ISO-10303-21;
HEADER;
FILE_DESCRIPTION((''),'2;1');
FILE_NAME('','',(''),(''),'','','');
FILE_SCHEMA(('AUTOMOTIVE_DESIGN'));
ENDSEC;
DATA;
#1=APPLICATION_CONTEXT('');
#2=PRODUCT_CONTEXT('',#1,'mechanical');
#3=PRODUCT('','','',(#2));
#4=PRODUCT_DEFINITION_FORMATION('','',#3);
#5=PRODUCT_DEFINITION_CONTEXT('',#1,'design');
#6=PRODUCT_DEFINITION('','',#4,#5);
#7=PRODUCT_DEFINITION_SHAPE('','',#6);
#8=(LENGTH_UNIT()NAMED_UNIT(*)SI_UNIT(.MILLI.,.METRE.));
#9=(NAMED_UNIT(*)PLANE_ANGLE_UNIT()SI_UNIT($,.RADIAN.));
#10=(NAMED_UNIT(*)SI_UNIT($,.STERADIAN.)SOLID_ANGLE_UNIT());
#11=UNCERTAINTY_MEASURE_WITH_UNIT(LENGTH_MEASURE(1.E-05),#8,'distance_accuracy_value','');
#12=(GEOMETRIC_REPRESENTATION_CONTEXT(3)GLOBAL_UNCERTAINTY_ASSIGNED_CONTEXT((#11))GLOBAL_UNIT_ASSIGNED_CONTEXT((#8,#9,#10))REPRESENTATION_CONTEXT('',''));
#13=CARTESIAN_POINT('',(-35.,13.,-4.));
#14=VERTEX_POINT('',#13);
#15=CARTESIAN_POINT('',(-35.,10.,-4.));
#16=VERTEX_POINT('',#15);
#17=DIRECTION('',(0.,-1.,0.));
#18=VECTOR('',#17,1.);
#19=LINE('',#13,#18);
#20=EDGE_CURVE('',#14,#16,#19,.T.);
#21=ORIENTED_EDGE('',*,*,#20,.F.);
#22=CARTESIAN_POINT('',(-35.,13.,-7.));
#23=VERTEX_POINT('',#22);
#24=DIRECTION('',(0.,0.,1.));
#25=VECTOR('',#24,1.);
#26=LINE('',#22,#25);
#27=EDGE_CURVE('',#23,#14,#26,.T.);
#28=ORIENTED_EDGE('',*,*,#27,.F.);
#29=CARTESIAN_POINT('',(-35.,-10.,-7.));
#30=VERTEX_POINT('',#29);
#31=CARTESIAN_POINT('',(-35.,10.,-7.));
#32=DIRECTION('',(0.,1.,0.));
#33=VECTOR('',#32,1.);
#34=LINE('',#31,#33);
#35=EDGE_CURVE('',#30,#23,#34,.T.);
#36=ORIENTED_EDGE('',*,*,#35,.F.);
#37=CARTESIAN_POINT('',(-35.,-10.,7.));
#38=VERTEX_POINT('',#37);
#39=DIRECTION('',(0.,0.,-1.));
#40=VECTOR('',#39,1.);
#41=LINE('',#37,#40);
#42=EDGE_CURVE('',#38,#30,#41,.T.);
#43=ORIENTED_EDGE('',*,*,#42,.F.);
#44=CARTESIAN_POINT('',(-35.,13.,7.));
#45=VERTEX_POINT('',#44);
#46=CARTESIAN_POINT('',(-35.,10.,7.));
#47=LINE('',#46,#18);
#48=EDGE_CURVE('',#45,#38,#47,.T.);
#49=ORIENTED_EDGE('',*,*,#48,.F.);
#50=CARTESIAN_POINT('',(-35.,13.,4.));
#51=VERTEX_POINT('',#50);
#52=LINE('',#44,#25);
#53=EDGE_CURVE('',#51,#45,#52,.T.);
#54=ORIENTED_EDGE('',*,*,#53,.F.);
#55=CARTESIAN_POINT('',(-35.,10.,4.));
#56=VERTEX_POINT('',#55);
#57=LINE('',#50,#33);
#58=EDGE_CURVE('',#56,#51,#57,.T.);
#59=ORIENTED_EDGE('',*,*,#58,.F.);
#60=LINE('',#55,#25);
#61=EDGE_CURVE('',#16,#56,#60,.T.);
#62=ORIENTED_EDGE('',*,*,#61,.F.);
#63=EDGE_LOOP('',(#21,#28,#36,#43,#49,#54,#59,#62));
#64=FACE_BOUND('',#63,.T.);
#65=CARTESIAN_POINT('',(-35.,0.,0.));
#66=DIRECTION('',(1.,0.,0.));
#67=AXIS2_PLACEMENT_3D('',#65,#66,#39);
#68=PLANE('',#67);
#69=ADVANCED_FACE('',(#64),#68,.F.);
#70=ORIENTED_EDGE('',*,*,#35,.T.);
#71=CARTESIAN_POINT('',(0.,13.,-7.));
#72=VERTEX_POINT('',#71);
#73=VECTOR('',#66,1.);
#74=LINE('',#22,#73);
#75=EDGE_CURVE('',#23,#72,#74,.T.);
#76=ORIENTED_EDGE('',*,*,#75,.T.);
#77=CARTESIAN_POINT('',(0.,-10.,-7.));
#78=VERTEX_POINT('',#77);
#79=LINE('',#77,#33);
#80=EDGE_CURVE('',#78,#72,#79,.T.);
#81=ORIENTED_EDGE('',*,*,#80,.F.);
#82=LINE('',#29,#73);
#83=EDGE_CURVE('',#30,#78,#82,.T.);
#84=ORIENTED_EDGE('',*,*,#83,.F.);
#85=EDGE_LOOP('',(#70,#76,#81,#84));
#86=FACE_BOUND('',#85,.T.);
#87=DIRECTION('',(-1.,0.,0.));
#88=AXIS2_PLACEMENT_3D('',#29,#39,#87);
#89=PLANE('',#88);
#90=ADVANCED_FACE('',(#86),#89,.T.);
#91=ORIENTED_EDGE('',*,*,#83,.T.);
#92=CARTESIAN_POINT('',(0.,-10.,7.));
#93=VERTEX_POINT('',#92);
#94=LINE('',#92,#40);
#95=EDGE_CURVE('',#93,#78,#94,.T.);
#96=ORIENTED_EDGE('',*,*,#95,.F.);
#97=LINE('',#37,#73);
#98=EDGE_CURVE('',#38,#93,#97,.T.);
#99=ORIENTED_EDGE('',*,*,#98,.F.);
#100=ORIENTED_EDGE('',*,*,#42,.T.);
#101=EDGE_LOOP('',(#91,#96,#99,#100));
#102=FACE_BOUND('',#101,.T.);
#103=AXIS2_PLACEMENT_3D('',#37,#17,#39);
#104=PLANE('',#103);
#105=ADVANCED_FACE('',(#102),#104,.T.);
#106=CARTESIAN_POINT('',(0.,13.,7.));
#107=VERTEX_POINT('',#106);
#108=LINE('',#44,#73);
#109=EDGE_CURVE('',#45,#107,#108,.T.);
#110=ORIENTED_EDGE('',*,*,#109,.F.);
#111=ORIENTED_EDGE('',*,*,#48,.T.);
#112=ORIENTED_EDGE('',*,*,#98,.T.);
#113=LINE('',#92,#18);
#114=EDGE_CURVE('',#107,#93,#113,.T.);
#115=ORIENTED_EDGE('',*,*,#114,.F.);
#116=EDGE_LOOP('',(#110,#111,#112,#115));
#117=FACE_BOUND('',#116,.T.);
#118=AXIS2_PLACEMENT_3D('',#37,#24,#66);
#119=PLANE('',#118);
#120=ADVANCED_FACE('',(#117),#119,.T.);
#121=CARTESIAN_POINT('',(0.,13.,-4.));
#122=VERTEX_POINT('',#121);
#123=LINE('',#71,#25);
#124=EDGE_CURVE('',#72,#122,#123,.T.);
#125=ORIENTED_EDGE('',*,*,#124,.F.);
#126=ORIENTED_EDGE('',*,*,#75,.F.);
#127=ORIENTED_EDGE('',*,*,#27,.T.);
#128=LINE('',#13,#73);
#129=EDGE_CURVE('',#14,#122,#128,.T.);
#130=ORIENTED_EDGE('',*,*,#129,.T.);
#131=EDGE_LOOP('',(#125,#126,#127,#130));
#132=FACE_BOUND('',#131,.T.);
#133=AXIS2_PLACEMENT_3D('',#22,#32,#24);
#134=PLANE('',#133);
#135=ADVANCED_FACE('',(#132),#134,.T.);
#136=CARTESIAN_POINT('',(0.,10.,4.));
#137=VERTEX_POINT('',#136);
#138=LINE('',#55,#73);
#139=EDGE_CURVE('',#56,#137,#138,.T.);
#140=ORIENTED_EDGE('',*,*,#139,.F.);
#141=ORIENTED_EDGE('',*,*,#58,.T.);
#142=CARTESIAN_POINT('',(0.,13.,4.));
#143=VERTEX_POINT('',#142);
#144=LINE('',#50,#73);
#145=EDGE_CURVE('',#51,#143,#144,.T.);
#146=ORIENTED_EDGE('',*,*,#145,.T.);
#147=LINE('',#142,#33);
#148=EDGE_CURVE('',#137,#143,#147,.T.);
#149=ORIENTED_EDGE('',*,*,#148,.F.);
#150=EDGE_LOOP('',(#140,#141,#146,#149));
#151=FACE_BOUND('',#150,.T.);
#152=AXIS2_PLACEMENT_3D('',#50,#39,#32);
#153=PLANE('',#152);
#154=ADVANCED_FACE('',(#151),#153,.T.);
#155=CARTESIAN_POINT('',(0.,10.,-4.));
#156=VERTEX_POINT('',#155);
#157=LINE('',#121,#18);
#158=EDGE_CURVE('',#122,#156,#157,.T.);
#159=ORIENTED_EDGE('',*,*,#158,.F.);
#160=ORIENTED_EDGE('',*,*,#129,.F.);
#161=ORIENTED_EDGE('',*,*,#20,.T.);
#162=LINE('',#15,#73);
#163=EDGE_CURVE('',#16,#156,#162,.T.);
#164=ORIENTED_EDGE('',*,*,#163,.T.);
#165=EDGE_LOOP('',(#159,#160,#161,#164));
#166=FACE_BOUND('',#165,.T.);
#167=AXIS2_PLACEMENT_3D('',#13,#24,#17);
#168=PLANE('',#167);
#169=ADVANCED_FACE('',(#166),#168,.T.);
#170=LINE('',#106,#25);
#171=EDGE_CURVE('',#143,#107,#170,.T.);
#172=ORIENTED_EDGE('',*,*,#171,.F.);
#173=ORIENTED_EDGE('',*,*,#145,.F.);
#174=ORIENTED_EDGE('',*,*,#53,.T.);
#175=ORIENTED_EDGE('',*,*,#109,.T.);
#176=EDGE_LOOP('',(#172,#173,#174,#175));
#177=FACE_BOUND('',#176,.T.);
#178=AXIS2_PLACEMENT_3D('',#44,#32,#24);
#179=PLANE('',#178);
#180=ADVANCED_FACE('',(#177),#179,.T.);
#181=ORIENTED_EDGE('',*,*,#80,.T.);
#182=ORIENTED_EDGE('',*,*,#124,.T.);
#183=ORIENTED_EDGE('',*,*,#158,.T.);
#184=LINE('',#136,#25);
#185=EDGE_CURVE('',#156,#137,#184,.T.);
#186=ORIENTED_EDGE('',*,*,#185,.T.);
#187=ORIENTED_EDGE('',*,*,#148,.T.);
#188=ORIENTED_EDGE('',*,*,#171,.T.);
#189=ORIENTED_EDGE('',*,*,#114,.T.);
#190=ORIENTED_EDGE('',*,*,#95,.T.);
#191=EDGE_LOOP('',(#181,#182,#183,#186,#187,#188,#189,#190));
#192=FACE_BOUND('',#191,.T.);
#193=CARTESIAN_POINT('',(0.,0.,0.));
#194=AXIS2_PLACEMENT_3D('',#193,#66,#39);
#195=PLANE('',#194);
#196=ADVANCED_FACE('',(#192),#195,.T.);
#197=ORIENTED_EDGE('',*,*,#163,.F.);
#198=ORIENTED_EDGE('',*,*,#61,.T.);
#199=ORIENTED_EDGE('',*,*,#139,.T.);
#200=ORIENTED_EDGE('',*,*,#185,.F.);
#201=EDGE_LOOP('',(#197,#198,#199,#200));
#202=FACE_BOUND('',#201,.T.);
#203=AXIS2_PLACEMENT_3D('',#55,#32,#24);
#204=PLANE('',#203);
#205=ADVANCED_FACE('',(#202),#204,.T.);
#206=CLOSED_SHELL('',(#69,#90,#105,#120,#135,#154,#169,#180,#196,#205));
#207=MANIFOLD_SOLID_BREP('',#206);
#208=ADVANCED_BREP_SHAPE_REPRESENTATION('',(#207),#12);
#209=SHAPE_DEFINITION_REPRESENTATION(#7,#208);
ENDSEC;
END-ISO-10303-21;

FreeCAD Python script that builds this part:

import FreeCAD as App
import Part
import Sketcher
Q = App.Units.Quantity


def add_polygon(sketch, points):
    """Adds a closed chain of lines whose ends are joined by coincident constraints."""
    first, n = sketch.GeometryCount, len(points)
    for a, b in zip(points, points[1:] + points[:1]):
        sketch.addGeometry(Part.LineSegment(App.Vector(*a, 0), App.Vector(*b, 0)), False)
    for i in range(n):
        sketch.addConstraint(Sketcher.Constraint("Coincident", first + i, 2, first + (i + 1) % n, 1))

doc = App.newDocument("Part")
body = doc.addObject("PartDesign::Body", "Body")

# Sketch on YZ plane
sketch1 = doc.addObject("Sketcher::SketchObject", "Sketch")
body.addObject(sketch1)
sketch1.AttachmentSupport = (doc.YZ_Plane, [""])
sketch1.MapMode = "FlatFace"
add_polygon(sketch1, [(13, 7), (-10, 7), (-10, -7), (13, -7), (13, -4), (10, -4), (10, 4), (13, 4)])  # lines 0-7
sketch1.addConstraint([
    Sketcher.Constraint("Horizontal", 0),
    Sketcher.Constraint("Vertical", 1),
    Sketcher.Constraint("Horizontal", 2),
    Sketcher.Constraint("Vertical", 3),
    Sketcher.Constraint("Horizontal", 4),
    Sketcher.Constraint("Vertical", 5),
    Sketcher.Constraint("Horizontal", 6),
    Sketcher.Constraint("Vertical", 7),
    Sketcher.Constraint("Symmetric", 3, 2, 6, 2, -1),
    Sketcher.Constraint("Equal", 6, 3),
    Sketcher.Constraint("Equal", 3, 7),
    Sketcher.Constraint("DistanceX", 0, 2, 0, 1, Q("23 mm")),
    Sketcher.Constraint("DistanceX", 4, 2, 4, 1, Q("3 mm")),
    Sketcher.Constraint("DistanceY", 1, 2, 1, 1, Q("14 mm")),
    Sketcher.Constraint("DistanceX", 0, 2, -1, 1, Q("10 mm")),
])
pad1 = doc.addObject("PartDesign::Pad", "Pad")
body.addObject(pad1)
pad1.Profile = sketch1
pad1.Length = 35
pad1.Reversed = True

doc.recompute()
